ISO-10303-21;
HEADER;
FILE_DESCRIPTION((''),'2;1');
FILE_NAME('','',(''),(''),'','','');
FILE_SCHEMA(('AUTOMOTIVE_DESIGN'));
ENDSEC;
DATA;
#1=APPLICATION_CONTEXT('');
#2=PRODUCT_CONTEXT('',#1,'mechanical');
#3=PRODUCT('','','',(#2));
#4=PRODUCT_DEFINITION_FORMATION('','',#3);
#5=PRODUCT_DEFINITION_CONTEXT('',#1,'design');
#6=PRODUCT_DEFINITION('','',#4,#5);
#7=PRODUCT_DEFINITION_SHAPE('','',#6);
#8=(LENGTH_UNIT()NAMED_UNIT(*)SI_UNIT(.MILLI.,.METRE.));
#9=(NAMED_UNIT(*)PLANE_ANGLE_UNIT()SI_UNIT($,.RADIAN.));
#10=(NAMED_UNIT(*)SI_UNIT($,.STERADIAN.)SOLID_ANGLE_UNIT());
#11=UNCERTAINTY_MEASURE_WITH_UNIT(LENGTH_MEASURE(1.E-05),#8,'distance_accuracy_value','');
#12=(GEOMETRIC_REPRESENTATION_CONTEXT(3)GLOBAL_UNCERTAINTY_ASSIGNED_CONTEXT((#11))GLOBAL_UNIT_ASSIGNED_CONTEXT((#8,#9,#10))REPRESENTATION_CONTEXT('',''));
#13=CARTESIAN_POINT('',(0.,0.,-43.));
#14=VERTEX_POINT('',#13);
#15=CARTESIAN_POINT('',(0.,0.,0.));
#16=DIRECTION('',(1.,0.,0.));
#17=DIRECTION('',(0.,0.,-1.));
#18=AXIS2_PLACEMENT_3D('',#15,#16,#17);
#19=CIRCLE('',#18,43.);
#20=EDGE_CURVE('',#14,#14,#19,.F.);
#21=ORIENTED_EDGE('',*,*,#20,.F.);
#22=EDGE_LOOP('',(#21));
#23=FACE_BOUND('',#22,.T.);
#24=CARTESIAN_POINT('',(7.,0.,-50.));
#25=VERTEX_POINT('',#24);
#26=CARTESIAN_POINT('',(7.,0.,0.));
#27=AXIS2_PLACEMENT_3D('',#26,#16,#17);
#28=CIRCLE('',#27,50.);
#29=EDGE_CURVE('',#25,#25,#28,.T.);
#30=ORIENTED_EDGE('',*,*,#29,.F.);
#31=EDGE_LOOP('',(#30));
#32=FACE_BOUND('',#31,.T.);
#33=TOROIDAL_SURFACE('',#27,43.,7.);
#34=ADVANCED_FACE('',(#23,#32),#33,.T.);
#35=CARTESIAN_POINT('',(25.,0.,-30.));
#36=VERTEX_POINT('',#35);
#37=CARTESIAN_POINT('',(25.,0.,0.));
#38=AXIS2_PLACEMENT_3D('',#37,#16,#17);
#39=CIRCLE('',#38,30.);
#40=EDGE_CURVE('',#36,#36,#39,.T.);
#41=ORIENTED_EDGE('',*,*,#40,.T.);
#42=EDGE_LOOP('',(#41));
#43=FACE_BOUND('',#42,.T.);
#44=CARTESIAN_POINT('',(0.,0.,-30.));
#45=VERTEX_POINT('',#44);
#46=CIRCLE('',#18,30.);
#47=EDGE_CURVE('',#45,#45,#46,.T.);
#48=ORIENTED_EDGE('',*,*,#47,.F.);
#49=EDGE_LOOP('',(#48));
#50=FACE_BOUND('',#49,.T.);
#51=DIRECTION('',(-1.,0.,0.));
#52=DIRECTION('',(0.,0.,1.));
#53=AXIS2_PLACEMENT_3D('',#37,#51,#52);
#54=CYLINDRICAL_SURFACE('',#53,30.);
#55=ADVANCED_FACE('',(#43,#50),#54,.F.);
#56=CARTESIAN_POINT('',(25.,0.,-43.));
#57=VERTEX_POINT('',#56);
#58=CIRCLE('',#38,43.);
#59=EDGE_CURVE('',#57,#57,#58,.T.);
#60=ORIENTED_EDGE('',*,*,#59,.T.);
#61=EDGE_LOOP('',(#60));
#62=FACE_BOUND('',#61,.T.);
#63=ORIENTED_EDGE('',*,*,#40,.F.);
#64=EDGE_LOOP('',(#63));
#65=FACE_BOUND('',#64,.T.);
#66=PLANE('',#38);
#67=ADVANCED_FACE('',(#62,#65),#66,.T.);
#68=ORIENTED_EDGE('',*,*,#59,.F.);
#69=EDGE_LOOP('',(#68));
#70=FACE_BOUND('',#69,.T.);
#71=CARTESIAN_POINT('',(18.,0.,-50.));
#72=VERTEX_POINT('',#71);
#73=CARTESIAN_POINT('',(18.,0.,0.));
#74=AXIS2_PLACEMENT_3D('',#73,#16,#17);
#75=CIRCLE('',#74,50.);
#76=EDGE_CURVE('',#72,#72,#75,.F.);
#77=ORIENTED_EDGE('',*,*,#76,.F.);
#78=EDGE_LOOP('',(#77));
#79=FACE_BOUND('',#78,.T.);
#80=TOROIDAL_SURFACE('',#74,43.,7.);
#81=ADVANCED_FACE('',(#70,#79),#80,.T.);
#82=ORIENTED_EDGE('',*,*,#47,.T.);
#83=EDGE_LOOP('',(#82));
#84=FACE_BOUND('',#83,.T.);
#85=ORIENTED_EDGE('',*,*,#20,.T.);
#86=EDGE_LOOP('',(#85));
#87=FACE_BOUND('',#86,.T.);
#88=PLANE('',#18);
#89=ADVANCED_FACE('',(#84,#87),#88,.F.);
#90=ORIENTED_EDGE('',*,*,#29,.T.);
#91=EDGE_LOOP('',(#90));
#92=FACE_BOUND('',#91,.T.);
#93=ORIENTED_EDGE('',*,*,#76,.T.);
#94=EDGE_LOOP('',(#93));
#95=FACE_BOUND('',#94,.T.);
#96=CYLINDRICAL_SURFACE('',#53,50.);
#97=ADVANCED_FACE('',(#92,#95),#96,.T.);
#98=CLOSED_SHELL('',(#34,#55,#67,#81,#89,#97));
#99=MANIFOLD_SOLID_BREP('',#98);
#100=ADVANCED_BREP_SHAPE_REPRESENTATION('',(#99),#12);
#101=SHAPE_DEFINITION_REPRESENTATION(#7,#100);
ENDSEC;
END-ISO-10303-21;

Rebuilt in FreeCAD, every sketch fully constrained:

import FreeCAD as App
import Part
import Sketcher

V = App.Vector
Q = App.Units.Quantity


def edges_at(feature, points):
    """Names of the edges that pass closest to the given points."""
    edges = feature.Shape.Edges
    near = lambda p: min(range(len(edges)), key=lambda i: edges[i].distToShape(Part.Vertex(*p))[0])
    return sorted({f"Edge{near(p) + 1}" for p in points})

doc = App.newDocument("Part")
body = doc.addObject("PartDesign::Body", "Body")

# Sketch on YZ plane
sketch1 = body.newObject("Sketcher::SketchObject", "Sketch")
sketch1.AttachmentSupport = (doc.getObject("YZ_Plane"), [""])
sketch1.MapMode = "FlatFace"
sketch1.addGeometry(Part.Circle(V(0, 0, 0), V(0, 0, 1), 50), False)
sketch1.addGeometry(Part.Circle(V(0, 0, 0), V(0, 0, 1), 30), False)
sketch1.addConstraint(Sketcher.Constraint("Coincident", 0, 3, -1, 1))
sketch1.addConstraint(Sketcher.Constraint("Coincident", 1, 3, -1, 1))
sketch1.addConstraint(Sketcher.Constraint("Diameter", 0, Q("100 mm")))
sketch1.addConstraint(Sketcher.Constraint("Diameter", 1, Q("60 mm")))
pad1 = body.newObject("PartDesign::Pad", "Pad")
pad1.Profile = sketch1
pad1.Length = 25
doc.recompute()

fillet = body.newObject("PartDesign::Fillet", "Fillet")
fillet.Base = (pad1, edges_at(pad1, [(0, 0, 50), (25, 0, 50)]))
fillet.Radius = 7

doc.recompute()
